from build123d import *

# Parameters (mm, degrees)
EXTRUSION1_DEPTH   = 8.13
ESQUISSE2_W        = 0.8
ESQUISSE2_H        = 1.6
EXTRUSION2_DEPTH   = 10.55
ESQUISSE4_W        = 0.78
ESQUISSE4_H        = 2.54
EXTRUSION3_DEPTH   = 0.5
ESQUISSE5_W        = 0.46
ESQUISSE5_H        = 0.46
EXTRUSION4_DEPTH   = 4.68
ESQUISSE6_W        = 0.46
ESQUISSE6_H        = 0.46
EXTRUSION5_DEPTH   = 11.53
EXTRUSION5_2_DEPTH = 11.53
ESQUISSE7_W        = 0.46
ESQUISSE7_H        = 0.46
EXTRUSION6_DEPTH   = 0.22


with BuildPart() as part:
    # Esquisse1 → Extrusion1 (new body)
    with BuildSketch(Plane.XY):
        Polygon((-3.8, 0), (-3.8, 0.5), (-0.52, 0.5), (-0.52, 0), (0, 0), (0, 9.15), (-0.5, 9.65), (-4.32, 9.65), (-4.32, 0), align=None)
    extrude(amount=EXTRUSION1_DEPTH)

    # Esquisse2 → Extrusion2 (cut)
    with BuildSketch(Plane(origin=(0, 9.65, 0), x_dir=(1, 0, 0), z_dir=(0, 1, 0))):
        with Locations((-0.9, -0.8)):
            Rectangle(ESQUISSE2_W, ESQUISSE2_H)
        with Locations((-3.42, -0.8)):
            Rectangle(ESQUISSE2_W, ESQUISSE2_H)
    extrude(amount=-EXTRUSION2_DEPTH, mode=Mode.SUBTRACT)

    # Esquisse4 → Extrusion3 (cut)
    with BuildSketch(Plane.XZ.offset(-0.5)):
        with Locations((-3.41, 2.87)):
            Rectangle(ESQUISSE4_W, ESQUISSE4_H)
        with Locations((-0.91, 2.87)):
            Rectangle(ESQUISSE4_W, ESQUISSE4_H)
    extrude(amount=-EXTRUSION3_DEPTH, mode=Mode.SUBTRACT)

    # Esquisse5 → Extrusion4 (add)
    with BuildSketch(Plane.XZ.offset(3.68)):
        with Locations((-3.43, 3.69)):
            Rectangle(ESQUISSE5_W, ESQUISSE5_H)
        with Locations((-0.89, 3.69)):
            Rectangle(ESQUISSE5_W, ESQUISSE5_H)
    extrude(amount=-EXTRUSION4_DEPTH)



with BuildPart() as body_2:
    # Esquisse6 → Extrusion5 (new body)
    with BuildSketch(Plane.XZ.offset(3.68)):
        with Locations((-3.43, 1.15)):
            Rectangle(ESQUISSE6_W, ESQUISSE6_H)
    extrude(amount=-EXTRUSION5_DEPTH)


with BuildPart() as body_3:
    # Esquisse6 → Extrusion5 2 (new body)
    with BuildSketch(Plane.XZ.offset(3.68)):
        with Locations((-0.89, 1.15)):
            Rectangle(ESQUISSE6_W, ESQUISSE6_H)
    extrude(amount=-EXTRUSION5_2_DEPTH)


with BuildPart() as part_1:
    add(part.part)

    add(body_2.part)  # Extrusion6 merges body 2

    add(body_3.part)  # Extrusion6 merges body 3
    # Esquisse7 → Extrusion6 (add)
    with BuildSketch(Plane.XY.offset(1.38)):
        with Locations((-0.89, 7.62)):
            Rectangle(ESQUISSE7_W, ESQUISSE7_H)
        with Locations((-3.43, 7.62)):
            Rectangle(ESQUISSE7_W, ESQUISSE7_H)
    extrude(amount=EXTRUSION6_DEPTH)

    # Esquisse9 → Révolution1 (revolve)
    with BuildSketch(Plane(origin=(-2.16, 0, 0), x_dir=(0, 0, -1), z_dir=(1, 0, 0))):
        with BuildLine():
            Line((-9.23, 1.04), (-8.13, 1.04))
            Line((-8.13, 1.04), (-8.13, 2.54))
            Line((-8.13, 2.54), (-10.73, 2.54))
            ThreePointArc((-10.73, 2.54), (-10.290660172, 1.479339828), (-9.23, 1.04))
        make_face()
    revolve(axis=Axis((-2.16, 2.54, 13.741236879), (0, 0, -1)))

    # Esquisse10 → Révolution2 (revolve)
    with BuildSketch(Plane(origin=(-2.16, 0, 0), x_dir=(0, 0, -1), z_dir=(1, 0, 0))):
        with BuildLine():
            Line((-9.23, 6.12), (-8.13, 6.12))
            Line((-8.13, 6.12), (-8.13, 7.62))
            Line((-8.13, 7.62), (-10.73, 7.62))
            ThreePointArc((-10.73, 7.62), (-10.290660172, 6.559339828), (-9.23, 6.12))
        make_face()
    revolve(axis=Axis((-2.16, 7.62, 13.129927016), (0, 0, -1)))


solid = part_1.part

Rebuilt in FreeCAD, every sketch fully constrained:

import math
import FreeCAD as App
import Part
import Sketcher
from FreeCAD import Vector
Q = App.Units.Quantity

doc = App.newDocument("Part")
params = doc.addObject("Spreadsheet::Sheet", "Params")
for row, (alias, value) in enumerate([
    ("sketch1_height", "0.5 mm"),
    ("sketch1_width", "3.28 mm"),
    ("sketch1_width2", "0.52 mm"),
    ("sketch1_width3", "3.82 mm"),
    ("sketch1_height2", "9.15 mm"),
    ("pad1_length", "8.13 mm"),
    ("sketch2_width", "0.8 mm"),
    ("sketch2_height", "1.6 mm"),
    ("pocket1_length", "10.55 mm"),
    ("sketch3_width", "0.78 mm"),
    ("sketch3_height", "2.54 mm"),
    ("pocket2_length", "0.5 mm"),
    ("sketch4_width", "0.46 mm"),
    ("pad2_length", "4.68 mm"),
    ("sketch5_width", "0.46 mm"),
    ("pad3_length", "11.53 mm"),
    ("sketch6_width", "0.46 mm"),
    ("pad4_length", "11.53 mm"),
    ("sketch7_width", "0.46 mm"),
    ("pad5_length", "0.22 mm"),
    ("sketch8_radius", "1.5 mm"),
    ("sketch8_height", "1.1 mm"),
    ("revolution_angle", "360 deg"),
    ("sketch9_radius", "1.5 mm"),
    ("sketch9_height", "1.1 mm"),
    ("revolution2_angle", "360 deg"),
], start=1):
    params.set(f"A{row}", alias)
    params.set(f"B{row}", "=" + value)
    params.setAlias(f"B{row}", alias)

body = doc.addObject("PartDesign::Body", "Body")

# Sketch on XY plane
sketch1 = body.newObject("Sketcher::SketchObject", "Sketch")
sketch1.AttachmentSupport = (doc.getObject("XY_Plane"), [""])
sketch1.MapMode = "FlatFace"
sketch1.addGeometry([
    Part.LineSegment(Vector(-3.8, 0, 0), Vector(-3.8, 0.5, 0)),  # 0
    Part.LineSegment(Vector(-3.8, 0.5, 0), Vector(-0.52, 0.5, 0)),  # 1
    Part.LineSegment(Vector(-0.52, 0.5, 0), Vector(-0.52, 0, 0)),  # 2
    Part.LineSegment(Vector(-0.52, 0, 0), Vector(0, 0, 0)),  # 3
    Part.LineSegment(Vector(0, 0, 0), Vector(0, 9.15, 0)),  # 4
    Part.LineSegment(Vector(0, 9.15, 0), Vector(-0.5, 9.65, 0)),  # 5
    Part.LineSegment(Vector(-0.5, 9.65, 0), Vector(-4.32, 9.65, 0)),  # 6
    Part.LineSegment(Vector(-4.32, 9.65, 0), Vector(-4.32, 0, 0)),  # 7
    Part.LineSegment(Vector(-4.32, 0, 0), Vector(-3.8, 0, 0)),  # 8
], False)
sketch1.addConstraint([
    Sketcher.Constraint("Coincident", 0, 2, 1, 1),
    Sketcher.Constraint("Coincident", 1, 2, 2, 1),
    Sketcher.Constraint("Coincident", 2, 2, 3, 1),
    Sketcher.Constraint("Coincident", 3, 2, 4, 1),
    Sketcher.Constraint("Coincident", 4, 2, 5, 1),
    Sketcher.Constraint("Coincident", 5, 2, 6, 1),
    Sketcher.Constraint("Coincident", 6, 2, 7, 1),
    Sketcher.Constraint("Coincident", 7, 2, 8, 1),
    Sketcher.Constraint("Coincident", 8, 2, 0, 1),
    Sketcher.Constraint("Vertical", 0),
    Sketcher.Constraint("Horizontal", 1),
    Sketcher.Constraint("Vertical", 2),
    Sketcher.Constraint("Horizontal", 3),
    Sketcher.Constraint("Vertical", 4),
    Sketcher.Constraint("Horizontal", 6),
    Sketcher.Constraint("Vertical", 7),
    Sketcher.Constraint("Horizontal", 8),
    Sketcher.Constraint("Coincident", 3, 2, -1, 1),
    Sketcher.Constraint("PointOnObject", 7, 2, -1),
    Sketcher.Constraint("Equal", 3, 8),
    Sketcher.Constraint("Angle", 5, Q("135 deg")),
    Sketcher.Constraint("DistanceY", 0, 1, 0, 2, 0.5),
    Sketcher.Constraint("DistanceX", 1, 1, 1, 2, 3.28),
    Sketcher.Constraint("DistanceX", 3, 1, 3, 2, 0.52),
    Sketcher.Constraint("DistanceX", 6, 2, 6, 1, 3.82),
    Sketcher.Constraint("DistanceY", 4, 1, 4, 2, 9.15),
])
sketch1.setExpression("Constraints[21]", "Params.sketch1_height")
sketch1.setExpression("Constraints[22]", "Params.sketch1_width")
sketch1.setExpression("Constraints[23]", "Params.sketch1_width2")
sketch1.setExpression("Constraints[24]", "Params.sketch1_width3")
sketch1.setExpression("Constraints[25]", "Params.sketch1_height2")
pad1 = body.newObject("PartDesign::Pad", "Pad")
pad1.Profile = sketch1
pad1.setExpression("Length", "Params.pad1_length")

# Sketch on XZ plane
sketch2 = body.newObject("Sketcher::SketchObject", "Sketch001")
sketch2.AttachmentSupport = (doc.getObject("XZ_Plane"), [""])
sketch2.MapMode = "FlatFace"
sketch2.AttachmentOffset = App.Placement(Vector(0, 0, -9.65), App.Rotation())
sketch2.addGeometry([
    Part.LineSegment(Vector(-1.3, 0, 0), Vector(-1.3, 1.6, 0)),  # 0
    Part.LineSegment(Vector(-1.3, 1.6, 0), Vector(-0.5, 1.6, 0)),  # 1
    Part.LineSegment(Vector(-0.5, 1.6, 0), Vector(-0.5, 0, 0)),  # 2
    Part.LineSegment(Vector(-0.5, 0, 0), Vector(-1.3, 0, 0)),  # 3
    Part.LineSegment(Vector(-3.82, 0, 0), Vector(-3.82, 1.6, 0)),  # 4
    Part.LineSegment(Vector(-3.82, 1.6, 0), Vector(-3.02, 1.6, 0)),  # 5
    Part.LineSegment(Vector(-3.02, 1.6, 0), Vector(-3.02, 0, 0)),  # 6
    Part.LineSegment(Vector(-3.02, 0, 0), Vector(-3.82, 0, 0)),  # 7
], False)
sketch2.addConstraint([
    Sketcher.Constraint("Coincident", 0, 2, 1, 1),
    Sketcher.Constraint("Coincident", 1, 2, 2, 1),
    Sketcher.Constraint("Coincident", 2, 2, 3, 1),
    Sketcher.Constraint("Coincident", 3, 2, 0, 1),
    Sketcher.Constraint("Coincident", 4, 2, 5, 1),
    Sketcher.Constraint("Coincident", 5, 2, 6, 1),
    Sketcher.Constraint("Coincident", 6, 2, 7, 1),
    Sketcher.Constraint("Coincident", 7, 2, 4, 1),
    Sketcher.Constraint("Vertical", 0),
    Sketcher.Constraint("Horizontal", 1),
    Sketcher.Constraint("Vertical", 2),
    Sketcher.Constraint("Horizontal", 3),
    Sketcher.Constraint("Vertical", 4),
    Sketcher.Constraint("Horizontal", 5),
    Sketcher.Constraint("Vertical", 6),
    Sketcher.Constraint("Horizontal", 7),
    Sketcher.Constraint("PointOnObject", 2, 2, -1),
    Sketcher.Constraint("PointOnObject", 6, 2, -1),
    Sketcher.Constraint("Horizontal", 1, 2, 4, 2),
    Sketcher.Constraint("Equal", 3, 5),
    Sketcher.Constraint("DistanceX", 1, 1, 1, 2, 0.8),
    Sketcher.Constraint("DistanceY", 0, 1, 0, 2, 1.6),
    Sketcher.Constraint("DistanceX", 0, 2, -1, 1, 1.3),
    Sketcher.Constraint("DistanceX", 4, 2, -1, 1, 3.82),
])
sketch2.setExpression("Constraints[20]", "Params.sketch2_width")
sketch2.setExpression("Constraints[21]", "Params.sketch2_height")
pocket1 = body.newObject("PartDesign::Pocket", "Pocket")
pocket1.Profile = sketch2
pocket1.setExpression("Length", "Params.pocket1_length")
pocket1.Reversed = True

# Sketch on XZ plane
sketch3 = body.newObject("Sketcher::SketchObject", "Sketch002")
sketch3.AttachmentSupport = (doc.getObject("XZ_Plane"), [""])
sketch3.MapMode = "FlatFace"
sketch3.AttachmentOffset = App.Placement(Vector(0, 0, -0.5), App.Rotation())
sketch3.addGeometry([
    Part.LineSegment(Vector(-3.8, 4.14, 0), Vector(-3.8, 1.6, 0)),  # 0
    Part.LineSegment(Vector(-3.8, 1.6, 0), Vector(-3.02, 1.6, 0)),  # 1
    Part.LineSegment(Vector(-3.02, 1.6, 0), Vector(-3.02, 4.14, 0)),  # 2
    Part.LineSegment(Vector(-3.02, 4.14, 0), Vector(-3.8, 4.14, 0)),  # 3
    Part.LineSegment(Vector(-1.3, 4.14, 0), Vector(-1.3, 1.6, 0)),  # 4
    Part.LineSegment(Vector(-1.3, 1.6, 0), Vector(-0.52, 1.6, 0)),  # 5
    Part.LineSegment(Vector(-0.52, 1.6, 0), Vector(-0.52, 4.14, 0)),  # 6
    Part.LineSegment(Vector(-0.52, 4.14, 0), Vector(-1.3, 4.14, 0)),  # 7
], False)
sketch3.addConstraint([
    Sketcher.Constraint("Coincident", 0, 2, 1, 1),
    Sketcher.Constraint("Coincident", 1, 2, 2, 1),
    Sketcher.Constraint("Coincident", 2, 2, 3, 1),
    Sketcher.Constraint("Coincident", 3, 2, 0, 1),
    Sketcher.Constraint("Coincident", 4, 2, 5, 1),
    Sketcher.Constraint("Coincident", 5, 2, 6, 1),
    Sketcher.Constraint("Coincident", 6, 2, 7, 1),
    Sketcher.Constraint("Coincident", 7, 2, 4, 1),
    Sketcher.Constraint("Vertical", 0),
    Sketcher.Constraint("Horizontal", 1),
    Sketcher.Constraint("Vertical", 2),
    Sketcher.Constraint("Horizontal", 3),
    Sketcher.Constraint("Vertical", 4),
    Sketcher.Constraint("Horizontal", 5),
    Sketcher.Constraint("Vertical", 6),
    Sketcher.Constraint("Horizontal", 7),
    Sketcher.Constraint("Horizontal", 1, 2, 4, 2),
    Sketcher.Constraint("Horizontal", 3, 2, 6, 2),
    Sketcher.Constraint("Equal", 3, 5),
    Sketcher.Constraint("DistanceX", 1, 1, 1, 2, 0.78),
    Sketcher.Constraint("DistanceY", 0, 2, 0, 1, 2.54),
    Sketcher.Constraint("DistanceX", 0, 2, -1, 1, 3.8),
    Sketcher.Constraint("DistanceY", -1, 1, 0, 2, 1.6),
    Sketcher.Constraint("DistanceX", 4, 2, -1, 1, 1.3),
])
sketch3.setExpression("Constraints[19]", "Params.sketch3_width")
sketch3.setExpression("Constraints[20]", "Params.sketch3_height")
pocket2 = body.newObject("PartDesign::Pocket", "Pocket001")
pocket2.Profile = sketch3
pocket2.setExpression("Length", "Params.pocket2_length")

# Sketch on XZ plane
sketch4 = body.newObject("Sketcher::SketchObject", "Sketch003")
sketch4.AttachmentSupport = (doc.getObject("XZ_Plane"), [""])
sketch4.MapMode = "FlatFace"
sketch4.AttachmentOffset = App.Placement(Vector(0, 0, 3.68), App.Rotation())
sketch4.addGeometry([
    Part.LineSegment(Vector(-3.66, 3.92, 0), Vector(-3.66, 3.46, 0)),  # 0
    Part.LineSegment(Vector(-3.66, 3.46, 0), Vector(-3.2, 3.46, 0)),  # 1
    Part.LineSegment(Vector(-3.2, 3.46, 0), Vector(-3.2, 3.92, 0)),  # 2
    Part.LineSegment(Vector(-3.2, 3.92, 0), Vector(-3.66, 3.92, 0)),  # 3
    Part.LineSegment(Vector(-1.12, 3.92, 0), Vector(-1.12, 3.46, 0)),  # 4
    Part.LineSegment(Vector(-1.12, 3.46, 0), Vector(-0.66, 3.46, 0)),  # 5
    Part.LineSegment(Vector(-0.66, 3.46, 0), Vector(-0.66, 3.92, 0)),  # 6
    Part.LineSegment(Vector(-0.66, 3.92, 0), Vector(-1.12, 3.92, 0)),  # 7
], False)
sketch4.addConstraint([
    Sketcher.Constraint("Coincident", 0, 2, 1, 1),
    Sketcher.Constraint("Coincident", 1, 2, 2, 1),
    Sketcher.Constraint("Coincident", 2, 2, 3, 1),
    Sketcher.Constraint("Coincident", 3, 2, 0, 1),
    Sketcher.Constraint("Coincident", 4, 2, 5, 1),
    Sketcher.Constraint("Coincident", 5, 2, 6, 1),
    Sketcher.Constraint("Coincident", 6, 2, 7, 1),
    Sketcher.Constraint("Coincident", 7, 2, 4, 1),
    Sketcher.Constraint("Vertical", 0),
    Sketcher.Constraint("Horizontal", 1),
    Sketcher.Constraint("Vertical", 2),
    Sketcher.Constraint("Horizontal", 3),
    Sketcher.Constraint("Vertical", 4),
    Sketcher.Constraint("Horizontal", 5),
    Sketcher.Constraint("Vertical", 6),
    Sketcher.Constraint("Horizontal", 7),
    Sketcher.Constraint("Horizontal", 1, 2, 4, 2),
    Sketcher.Constraint("Horizontal", 3, 2, 6, 2),
    Sketcher.Constraint("Equal", 3, 5),
    Sketcher.Constraint("Equal", 7, 0),
    Sketcher.Constraint("DistanceX", 0, 2, 5, 2, 3.0),
    Sketcher.Constraint("DistanceX", 1, 1, 1, 2, 0.46),
    Sketcher.Constraint("DistanceX", 1, 2, -1, 1, 3.2),
    Sketcher.Constraint("DistanceY", -1, 1, 0, 2, 3.46),
])
sketch4.setExpression("Constraints[21]", "Params.sketch4_width")
pad2 = body.newObject("PartDesign::Pad", "Pad001")
pad2.Profile = sketch4
pad2.setExpression("Length", "Params.pad2_length")
pad2.Reversed = True
body2 = doc.addObject("PartDesign::Body", "Body001")

# Sketch on XZ plane
sketch5 = body2.newObject("Sketcher::SketchObject", "Sketch004")
sketch5.AttachmentSupport = (doc.getObject("XZ_Plane001"), [""])
sketch5.MapMode = "FlatFace"
sketch5.AttachmentOffset = App.Placement(Vector(0, 0, 3.68), App.Rotation())
sketch5.addGeometry([
    Part.LineSegment(Vector(-3.66, 1.38, 0), Vector(-3.66, 0.92, 0)),
    Part.LineSegment(Vector(-3.66, 0.92, 0), Vector(-3.2, 0.92, 0)),
    Part.LineSegment(Vector(-3.2, 0.92, 0), Vector(-3.2, 1.38, 0)),
    Part.LineSegment(Vector(-3.2, 1.38, 0), Vector(-3.66, 1.38, 0)),
], False)
sketch5.addConstraint([
    Sketcher.Constraint("Coincident", 0, 2, 1, 1),
    Sketcher.Constraint("Coincident", 1, 2, 2, 1),
    Sketcher.Constraint("Coincident", 2, 2, 3, 1),
    Sketcher.Constraint("Coincident", 3, 2, 0, 1),
    Sketcher.Constraint("Vertical", 0),
    Sketcher.Constraint("Horizontal", 1),
    Sketcher.Constraint("Vertical", 2),
    Sketcher.Constraint("Horizontal", 3),
    Sketcher.Constraint("Equal", 3, 0),
    Sketcher.Constraint("DistanceX", 1, 1, 1, 2, 0.46),
    Sketcher.Constraint("DistanceX", 1, 2, -1, 1, 3.2),
    Sketcher.Constraint("DistanceY", -1, 1, 0, 2, 0.92),
])
sketch5.setExpression("Constraints[9]", "Params.sketch5_width")
pad3 = body2.newObject("PartDesign::Pad", "Pad002")
pad3.Profile = sketch5
pad3.setExpression("Length", "Params.pad3_length")
pad3.Reversed = True
body3 = doc.addObject("PartDesign::Body", "Body002")

# Sketch on XZ plane
sketch6 = body3.newObject("Sketcher::SketchObject", "Sketch005")
sketch6.AttachmentSupport = (doc.getObject("XZ_Plane002"), [""])
sketch6.MapMode = "FlatFace"
sketch6.AttachmentOffset = App.Placement(Vector(0, 0, 3.68), App.Rotation())
sketch6.addGeometry([
    Part.LineSegment(Vector(-1.12, 1.38, 0), Vector(-1.12, 0.92, 0)),
    Part.LineSegment(Vector(-1.12, 0.92, 0), Vector(-0.66, 0.92, 0)),
    Part.LineSegment(Vector(-0.66, 0.92, 0), Vector(-0.66, 1.38, 0)),
    Part.LineSegment(Vector(-0.66, 1.38, 0), Vector(-1.12, 1.38, 0)),
], False)
sketch6.addConstraint([
    Sketcher.Constraint("Coincident", 0, 2, 1, 1),
    Sketcher.Constraint("Coincident", 1, 2, 2, 1),
    Sketcher.Constraint("Coincident", 2, 2, 3, 1),
    Sketcher.Constraint("Coincident", 3, 2, 0, 1),
    Sketcher.Constraint("Vertical", 0),
    Sketcher.Constraint("Horizontal", 1),
    Sketcher.Constraint("Vertical", 2),
    Sketcher.Constraint("Horizontal", 3),
    Sketcher.Constraint("Equal", 3, 0),
    Sketcher.Constraint("DistanceX", 1, 1, 1, 2, 0.46),
    Sketcher.Constraint("DistanceX", 0, 2, -1, 1, 1.12),
    Sketcher.Constraint("DistanceY", -1, 1, 0, 2, 0.92),
])
sketch6.setExpression("Constraints[9]", "Params.sketch6_width")
pad4 = body3.newObject("PartDesign::Pad", "Pad003")
pad4.Profile = sketch6
pad4.setExpression("Length", "Params.pad4_length")
pad4.Reversed = True
body.AllowCompound = True
doc.recompute()

boolean = body.newObject("PartDesign::Boolean", "Boolean")
boolean.Type = "Fuse"
boolean.addObjects([body2])
doc.recompute()

boolean2 = body.newObject("PartDesign::Boolean", "Boolean001")
boolean2.Type = "Fuse"
boolean2.addObjects([body3])

# Sketch on XY plane
sketch7 = body.newObject("Sketcher::SketchObject", "Sketch006")
sketch7.AttachmentSupport = (doc.getObject("XY_Plane"), [""])
sketch7.MapMode = "FlatFace"
sketch7.AttachmentOffset = App.Placement(Vector(0, 0, 1.38), App.Rotation())
sketch7.addGeometry([
    Part.LineSegment(Vector(-1.12, 7.85, 0), Vector(-1.12, 7.39, 0)),  # 0
    Part.LineSegment(Vector(-1.12, 7.39, 0), Vector(-0.66, 7.39, 0)),  # 1
    Part.LineSegment(Vector(-0.66, 7.39, 0), Vector(-0.66, 7.85, 0)),  # 2
    Part.LineSegment(Vector(-0.66, 7.85, 0), Vector(-1.12, 7.85, 0)),  # 3
    Part.LineSegment(Vector(-3.66, 7.85, 0), Vector(-3.66, 7.39, 0)),  # 4
    Part.LineSegment(Vector(-3.66, 7.39, 0), Vector(-3.2, 7.39, 0)),  # 5
    Part.LineSegment(Vector(-3.2, 7.39, 0), Vector(-3.2, 7.85, 0)),  # 6
    Part.LineSegment(Vector(-3.2, 7.85, 0), Vector(-3.66, 7.85, 0)),  # 7
], False)
sketch7.addConstraint([
    Sketcher.Constraint("Coincident", 0, 2, 1, 1),
    Sketcher.Constraint("Coincident", 1, 2, 2, 1),
    Sketcher.Constraint("Coincident", 2, 2, 3, 1),
    Sketcher.Constraint("Coincident", 3, 2, 0, 1),
    Sketcher.Constraint("Coincident", 4, 2, 5, 1),
    Sketcher.Constraint("Coincident", 5, 2, 6, 1),
    Sketcher.Constraint("Coincident", 6, 2, 7, 1),
    Sketcher.Constraint("Coincident", 7, 2, 4, 1),
    Sketcher.Constraint("Vertical", 0),
    Sketcher.Constraint("Horizontal", 1),
    Sketcher.Constraint("Vertical", 2),
    Sketcher.Constraint("Horizontal", 3),
    Sketcher.Constraint("Vertical", 4),
    Sketcher.Constraint("Horizontal", 5),
    Sketcher.Constraint("Vertical", 6),
    Sketcher.Constraint("Horizontal", 7),
    Sketcher.Constraint("Horizontal", 1, 2, 4, 2),
    Sketcher.Constraint("Horizontal", 3, 2, 6, 2),
    Sketcher.Constraint("Equal", 3, 5),
    Sketcher.Constraint("Equal", 7, 0),
    Sketcher.Constraint("DistanceX", 4, 2, 1, 2, 3.0),
    Sketcher.Constraint("DistanceX", 1, 1, 1, 2, 0.46),
    Sketcher.Constraint("DistanceX", 5, 2, -1, 1, 3.2),
    Sketcher.Constraint("DistanceY", -1, 1, 0, 2, 7.39),
])
sketch7.setExpression("Constraints[21]", "Params.sketch7_width")
pad5 = body.newObject("PartDesign::Pad", "Pad004")
pad5.Profile = sketch7
pad5.setExpression("Length", "Params.pad5_length")

# Sketch on YZ plane
sketch8 = body.newObject("Sketcher::SketchObject", "Sketch007")
sketch8.AttachmentSupport = (doc.getObject("YZ_Plane"), [""])
sketch8.MapMode = "FlatFace"
sketch8.AttachmentOffset = App.Placement(Vector(0, 0, -2.16), App.Rotation())
sketch8.addGeometry([
    Part.LineSegment(Vector(1.04, 9.23, 0), Vector(1.04, 8.13, 0)),
    Part.LineSegment(Vector(1.04, 8.13, 0), Vector(2.54, 8.13, 0)),
    Part.LineSegment(Vector(2.54, 8.13, 0), Vector(2.54, 10.73, 0)),
    Part.ArcOfCircle(Part.Circle(Vector(2.54, 9.23, 0), Vector(0, 0, 1), 1.5), math.radians(90), math.radians(180)),
], False)
sketch8.addGeometry(Part.LineSegment(Vector(2.54, 10.73, 0), Vector(2.54, 8.13, 0)), True)  # axis
sketch8.addConstraint([
    Sketcher.Constraint("Coincident", 0, 2, 1, 1),
    Sketcher.Constraint("Coincident", 1, 2, 2, 1),
    Sketcher.Constraint("Coincident", 2, 2, 3, 1),
    Sketcher.Constraint("Tangent", 3, 2, 0, 1),
    Sketcher.Constraint("Vertical", 0),
    Sketcher.Constraint("Horizontal", 1),
    Sketcher.Constraint("Vertical", 2),
    Sketcher.Constraint("Vertical", 4),
    Sketcher.Constraint("Coincident", 4, 1, 2, 2),
    Sketcher.Constraint("Horizontal", 0, 2, 4, 2),
    Sketcher.Constraint("Vertical", 3, 3, 1, 2),
    Sketcher.Constraint("Radius", 3, 1.5),
    Sketcher.Constraint("DistanceY", 0, 2, 0, 1, 1.1),
    Sketcher.Constraint("DistanceX", -1, 1, 3, 3, 2.54),
    Sketcher.Constraint("DistanceY", -1, 1, 3, 3, 9.23),
])
sketch8.setExpression("Constraints[11]", "Params.sketch8_radius")
sketch8.setExpression("Constraints[12]", "Params.sketch8_height")
revolution = body.newObject("PartDesign::Revolution", "Revolution")
revolution.Profile = sketch8
revolution.ReferenceAxis = (sketch8, ["Axis0"])
revolution.setExpression("Angle", "Params.revolution_angle")

# Sketch on YZ plane
sketch9 = body.newObject("Sketcher::SketchObject", "Sketch008")
sketch9.AttachmentSupport = (doc.getObject("YZ_Plane"), [""])
sketch9.MapMode = "FlatFace"
sketch9.AttachmentOffset = App.Placement(Vector(0, 0, -2.16), App.Rotation())
sketch9.addGeometry([
    Part.LineSegment(Vector(6.12, 9.23, 0), Vector(6.12, 8.13, 0)),
    Part.LineSegment(Vector(6.12, 8.13, 0), Vector(7.62, 8.13, 0)),
    Part.LineSegment(Vector(7.62, 8.13, 0), Vector(7.62, 10.73, 0)),
    Part.ArcOfCircle(Part.Circle(Vector(7.62, 9.23, 0), Vector(0, 0, 1), 1.5), math.radians(90), math.radians(180)),
], False)
sketch9.addGeometry(Part.LineSegment(Vector(7.62, 10.73, 0), Vector(7.62, 8.13, 0)), True)  # axis
sketch9.addConstraint([
    Sketcher.Constraint("Coincident", 0, 2, 1, 1),
    Sketcher.Constraint("Coincident", 1, 2, 2, 1),
    Sketcher.Constraint("Coincident", 2, 2, 3, 1),
    Sketcher.Constraint("Tangent", 3, 2, 0, 1),
    Sketcher.Constraint("Vertical", 0),
    Sketcher.Constraint("Horizontal", 1),
    Sketcher.Constraint("Vertical", 2),
    Sketcher.Constraint("Vertical", 4),
    Sketcher.Constraint("Coincident", 4, 1, 2, 2),
    Sketcher.Constraint("Horizontal", 0, 2, 4, 2),
    Sketcher.Constraint("Vertical", 3, 3, 1, 2),
    Sketcher.Constraint("Radius", 3, 1.5),
    Sketcher.Constraint("DistanceY", 0, 2, 0, 1, 1.1),
    Sketcher.Constraint("DistanceX", -1, 1, 3, 3, 7.62),
    Sketcher.Constraint("DistanceY", -1, 1, 3, 3, 9.23),
])
sketch9.setExpression("Constraints[11]", "Params.sketch9_radius")
sketch9.setExpression("Constraints[12]", "Params.sketch9_height")
revolution2 = body.newObject("PartDesign::Revolution", "Revolution001")
revolution2.Profile = sketch9
revolution2.ReferenceAxis = (sketch9, ["Axis0"])
revolution2.setExpression("Angle", "Params.revolution2_angle")

doc.recompute()
